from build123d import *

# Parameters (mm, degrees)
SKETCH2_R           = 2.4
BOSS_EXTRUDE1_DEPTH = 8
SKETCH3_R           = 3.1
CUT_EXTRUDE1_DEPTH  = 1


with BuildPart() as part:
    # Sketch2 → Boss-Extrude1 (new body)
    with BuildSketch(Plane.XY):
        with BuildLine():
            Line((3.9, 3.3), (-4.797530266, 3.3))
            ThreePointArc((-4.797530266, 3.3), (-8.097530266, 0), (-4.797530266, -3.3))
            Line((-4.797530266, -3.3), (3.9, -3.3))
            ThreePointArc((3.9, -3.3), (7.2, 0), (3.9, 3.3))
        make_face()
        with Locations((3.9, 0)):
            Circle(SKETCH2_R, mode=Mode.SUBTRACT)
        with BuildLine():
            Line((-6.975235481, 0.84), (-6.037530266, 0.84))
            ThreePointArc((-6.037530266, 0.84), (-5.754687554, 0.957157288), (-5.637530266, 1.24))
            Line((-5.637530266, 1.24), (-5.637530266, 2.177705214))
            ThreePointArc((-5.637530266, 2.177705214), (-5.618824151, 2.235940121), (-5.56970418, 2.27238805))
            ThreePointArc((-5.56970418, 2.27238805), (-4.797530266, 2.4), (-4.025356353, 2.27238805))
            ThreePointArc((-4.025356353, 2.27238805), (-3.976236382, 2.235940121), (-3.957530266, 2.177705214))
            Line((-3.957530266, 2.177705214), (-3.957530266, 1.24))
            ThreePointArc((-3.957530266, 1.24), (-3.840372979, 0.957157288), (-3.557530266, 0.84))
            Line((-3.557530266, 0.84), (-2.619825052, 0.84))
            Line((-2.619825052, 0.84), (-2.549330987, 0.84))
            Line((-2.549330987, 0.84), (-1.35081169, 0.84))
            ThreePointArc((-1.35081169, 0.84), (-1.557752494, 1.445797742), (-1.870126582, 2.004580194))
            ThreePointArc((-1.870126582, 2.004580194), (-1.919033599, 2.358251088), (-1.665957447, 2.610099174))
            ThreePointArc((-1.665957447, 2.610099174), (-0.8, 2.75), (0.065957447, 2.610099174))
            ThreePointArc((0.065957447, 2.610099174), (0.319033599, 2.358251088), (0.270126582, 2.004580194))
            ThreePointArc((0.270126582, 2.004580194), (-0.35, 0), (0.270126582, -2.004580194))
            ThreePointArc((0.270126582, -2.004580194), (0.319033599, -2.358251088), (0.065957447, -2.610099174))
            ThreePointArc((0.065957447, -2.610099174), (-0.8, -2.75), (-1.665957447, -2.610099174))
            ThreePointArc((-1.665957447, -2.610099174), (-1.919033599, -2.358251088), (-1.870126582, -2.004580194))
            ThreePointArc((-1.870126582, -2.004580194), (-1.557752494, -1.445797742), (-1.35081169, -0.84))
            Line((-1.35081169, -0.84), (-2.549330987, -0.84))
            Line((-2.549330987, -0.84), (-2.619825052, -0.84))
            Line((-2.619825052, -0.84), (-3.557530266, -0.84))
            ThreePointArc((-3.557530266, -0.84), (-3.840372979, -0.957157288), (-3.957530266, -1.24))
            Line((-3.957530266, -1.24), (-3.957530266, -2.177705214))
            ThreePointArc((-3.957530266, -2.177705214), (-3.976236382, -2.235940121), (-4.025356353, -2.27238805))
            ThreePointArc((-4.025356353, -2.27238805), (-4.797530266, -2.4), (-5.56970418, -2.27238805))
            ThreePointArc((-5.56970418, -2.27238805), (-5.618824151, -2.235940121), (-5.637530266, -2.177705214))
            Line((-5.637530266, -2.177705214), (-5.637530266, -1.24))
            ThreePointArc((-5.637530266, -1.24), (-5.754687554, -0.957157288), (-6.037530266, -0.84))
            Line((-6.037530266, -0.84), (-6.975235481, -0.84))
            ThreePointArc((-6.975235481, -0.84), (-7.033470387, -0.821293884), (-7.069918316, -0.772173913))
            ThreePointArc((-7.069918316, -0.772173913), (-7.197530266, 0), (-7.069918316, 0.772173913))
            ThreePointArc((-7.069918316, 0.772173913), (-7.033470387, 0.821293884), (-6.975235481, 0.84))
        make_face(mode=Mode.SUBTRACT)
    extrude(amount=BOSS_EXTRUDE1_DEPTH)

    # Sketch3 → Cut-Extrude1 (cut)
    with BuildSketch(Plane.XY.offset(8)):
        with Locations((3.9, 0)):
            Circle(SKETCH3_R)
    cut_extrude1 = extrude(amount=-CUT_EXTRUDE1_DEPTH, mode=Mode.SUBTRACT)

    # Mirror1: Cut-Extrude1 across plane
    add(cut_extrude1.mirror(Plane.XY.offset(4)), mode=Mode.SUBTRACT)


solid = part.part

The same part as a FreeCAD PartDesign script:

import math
import FreeCAD as App
import Part
import Sketcher
from FreeCAD import Vector

doc = App.newDocument("Part")
body = doc.addObject("PartDesign::Body", "Body")

# Sketch on XY plane
sketch1 = body.newObject("Sketcher::SketchObject", "Sketch")
sketch1.AttachmentSupport = (doc.getObject("XY_Plane"), [""])
sketch1.MapMode = "FlatFace"
sketch1.addGeometry(Part.LineSegment(Vector(3.9, 3.3, 0), Vector(-4.8, 3.3, 0)), False)
sketch1.addGeometry(Part.ArcOfCircle(Part.Circle(Vector(-4.8, 0, 0), Vector(0, 0, 1), 3.3), math.radians(90), math.radians(270)), False)
sketch1.addGeometry(Part.LineSegment(Vector(-4.8, -3.3, 0), Vector(3.9, -3.3, 0)), False)
sketch1.addGeometry(Part.ArcOfCircle(Part.Circle(Vector(3.9, 0, 0), Vector(0, 0, 1), 3.3), math.radians(-90), math.radians(90)), False)
sketch1.addGeometry(Part.ArcOfCircle(Part.Circle(Vector(-6.98, 0.74, 0), Vector(0, 0, 1), 0.1), math.radians(90), math.radians(161)), False)
sketch1.addGeometry(Part.LineSegment(Vector(-6.98, 0.84, 0), Vector(-6.04, 0.84, 0)), False)
sketch1.addGeometry(Part.ArcOfCircle(Part.Circle(Vector(-6.04, 1.24, 0), Vector(0, 0, 1), 0.4), math.radians(-90), math.radians(0)), False)
sketch1.addGeometry(Part.LineSegment(Vector(-5.64, 1.24, 0), Vector(-5.64, 2.18, 0)), False)
sketch1.addGeometry(Part.ArcOfCircle(Part.Circle(Vector(-5.54, 2.18, 0), Vector(0, 0, 1), 0.1), math.radians(109), math.radians(180)), False)
sketch1.addGeometry(Part.ArcOfCircle(Part.Circle(Vector(-4.8, 0, 0), Vector(0, 0, 1), 2.4), math.radians(71), math.radians(109)), False)
sketch1.addGeometry(Part.ArcOfCircle(Part.Circle(Vector(-4.06, 2.18, 0), Vector(0, 0, 1), 0.1), math.radians(0), math.radians(71)), False)
sketch1.addGeometry(Part.LineSegment(Vector(-3.96, 2.18, 0), Vector(-3.96, 1.24, 0)), False)
sketch1.addGeometry(Part.ArcOfCircle(Part.Circle(Vector(-3.56, 1.24, 0), Vector(0, 0, 1), 0.4), math.radians(180), math.radians(270)), False)
sketch1.addGeometry(Part.LineSegment(Vector(-3.56, 0.84, 0), Vector(-1.35, 0.84, 0)), False)
sketch1.addGeometry(Part.ArcOfCircle(Part.Circle(Vector(-4.8, 0, 0), Vector(0, 0, 1), 3.55), math.radians(14), math.radians(34)), False)
sketch1.addGeometry(Part.ArcOfCircle(Part.Circle(Vector(-1.54, 2.23, 0), Vector(0, 0, 1), 0.4), math.radians(108), math.radians(214)), False)
sketch1.addGeometry(Part.ArcOfCircle(Part.Circle(Vector(-0.8, 0, 0), Vector(0, 0, 1), 2.75), math.radians(72), math.radians(108)), False)
sketch1.addGeometry(Part.ArcOfCircle(Part.Circle(Vector(-0.06, 2.23, 0), Vector(0, 0, 1), 0.4), math.radians(-34), math.radians(72)), False)
sketch1.addGeometry(Part.ArcOfCircle(Part.Circle(Vector(3.2, 0, 0), Vector(0, 0, 1), 3.55), math.radians(146), math.radians(214)), False)
sketch1.addGeometry(Part.ArcOfCircle(Part.Circle(Vector(-0.06, -2.23, 0), Vector(0, 0, 1), 0.4), math.radians(-72), math.radians(34)), False)
sketch1.addGeometry(Part.ArcOfCircle(Part.Circle(Vector(-0.8, 0, 0), Vector(0, 0, 1), 2.75), math.radians(-108), math.radians(-72)), False)
sketch1.addGeometry(Part.ArcOfCircle(Part.Circle(Vector(-1.54, -2.23, 0), Vector(0, 0, 1), 0.4), math.radians(146), math.radians(252)), False)
sketch1.addGeometry(Part.ArcOfCircle(Part.Circle(Vector(-4.8, 0, 0), Vector(0, 0, 1), 3.55), math.radians(-34), math.radians(-14)), False)
sketch1.addGeometry(Part.LineSegment(Vector(-1.35, -0.84, 0), Vector(-3.56, -0.84, 0)), False)
sketch1.addGeometry(Part.ArcOfCircle(Part.Circle(Vector(-3.56, -1.24, 0), Vector(0, 0, 1), 0.4), math.radians(90), math.radians(180)), False)
sketch1.addGeometry(Part.LineSegment(Vector(-3.96, -1.24, 0), Vector(-3.96, -2.18, 0)), False)
sketch1.addGeometry(Part.ArcOfCircle(Part.Circle(Vector(-4.06, -2.18, 0), Vector(0, 0, 1), 0.1), math.radians(-71), math.radians(0)), False)
sketch1.addGeometry(Part.ArcOfCircle(Part.Circle(Vector(-4.8, 0, 0), Vector(0, 0, 1), 2.4), math.radians(-109), math.radians(-71)), False)
sketch1.addGeometry(Part.ArcOfCircle(Part.Circle(Vector(-5.54, -2.18, 0), Vector(0, 0, 1), 0.1), math.radians(180), math.radians(251)), False)
sketch1.addGeometry(Part.LineSegment(Vector(-5.64, -2.18, 0), Vector(-5.64, -1.24, 0)), False)
sketch1.addGeometry(Part.ArcOfCircle(Part.Circle(Vector(-6.04, -1.24, 0), Vector(0, 0, 1), 0.4), math.radians(0), math.radians(90)), False)
sketch1.addGeometry(Part.LineSegment(Vector(-6.04, -0.84, 0), Vector(-6.98, -0.84, 0)), False)
sketch1.addGeometry(Part.ArcOfCircle(Part.Circle(Vector(-6.98, -0.74, 0), Vector(0, 0, 1), 0.1), math.radians(-161), math.radians(-90)), False)
sketch1.addGeometry(Part.ArcOfCircle(Part.Circle(Vector(-4.8, 0, 0), Vector(0, 0, 1), 2.4), math.radians(161), math.radians(199)), False)
sketch1.addGeometry(Part.Circle(Vector(3.9, 0, 0), Vector(0, 0, 1), 2.4), False)
sketch1.addConstraint(Sketcher.Constraint("Tangent", 0, 2, 1, 1))
sketch1.addConstraint(Sketcher.Constraint("Tangent", 1, 2, 2, 1))
sketch1.addConstraint(Sketcher.Constraint("Tangent", 2, 2, 3, 1))
sketch1.addConstraint(Sketcher.Constraint("Tangent", 3, 2, 0, 1))
sketch1.addConstraint(Sketcher.Constraint("Tangent", 4, 1, 5, 1))
sketch1.addConstraint(Sketcher.Constraint("Tangent", 5, 2, 6, 1))
sketch1.addConstraint(Sketcher.Constraint("Tangent", 6, 2, 7, 1))
sketch1.addConstraint(Sketcher.Constraint("Tangent", 7, 2, 8, 2))
sketch1.addConstraint(Sketcher.Constraint("Tangent", 8, 1, 9, 2))
sketch1.addConstraint(Sketcher.Constraint("Tangent", 9, 1, 10, 2))
sketch1.addConstraint(Sketcher.Constraint("Tangent", 10, 1, 11, 1))
sketch1.addConstraint(Sketcher.Constraint("Tangent", 11, 2, 12, 1))
sketch1.addConstraint(Sketcher.Constraint("Tangent", 12, 2, 13, 1))
sketch1.addConstraint(Sketcher.Constraint("Coincident", 13, 2, 14, 1))
sketch1.addConstraint(Sketcher.Constraint("Tangent", 14, 2, 15, 2))
sketch1.addConstraint(Sketcher.Constraint("Tangent", 15, 1, 16, 2))
sketch1.addConstraint(Sketcher.Constraint("Tangent", 16, 1, 17, 2))
sketch1.addConstraint(Sketcher.Constraint("Tangent", 17, 1, 18, 1))
sketch1.addConstraint(Sketcher.Constraint("Tangent", 18, 2, 19, 2))
sketch1.addConstraint(Sketcher.Constraint("Tangent", 19, 1, 20, 2))
sketch1.addConstraint(Sketcher.Constraint("Tangent", 20, 1, 21, 2))
sketch1.addConstraint(Sketcher.Constraint("Tangent", 21, 1, 22, 1))
sketch1.addConstraint(Sketcher.Constraint("Coincident", 22, 2, 23, 1))
sketch1.addConstraint(Sketcher.Constraint("Tangent", 23, 2, 24, 1))
sketch1.addConstraint(Sketcher.Constraint("Tangent", 24, 2, 25, 1))
sketch1.addConstraint(Sketcher.Constraint("Tangent", 25, 2, 26, 2))
sketch1.addConstraint(Sketcher.Constraint("Tangent", 26, 1, 27, 2))
sketch1.addConstraint(Sketcher.Constraint("Tangent", 27, 1, 28, 2))
sketch1.addConstraint(Sketcher.Constraint("Tangent", 28, 1, 29, 1))
sketch1.addConstraint(Sketcher.Constraint("Tangent", 29, 2, 30, 1))
sketch1.addConstraint(Sketcher.Constraint("Tangent", 30, 2, 31, 1))
sketch1.addConstraint(Sketcher.Constraint("Tangent", 31, 2, 32, 2))
sketch1.addConstraint(Sketcher.Constraint("Tangent", 32, 1, 33, 2))
sketch1.addConstraint(Sketcher.Constraint("Tangent", 33, 1, 4, 2))
sketch1.addConstraint(Sketcher.Constraint("Horizontal", 0))
sketch1.addConstraint(Sketcher.Constraint("Horizontal", 2))
sketch1.addConstraint(Sketcher.Constraint("Horizontal", 5))
sketch1.addConstraint(Sketcher.Constraint("Vertical", 7))
sketch1.addConstraint(Sketcher.Constraint("Vertical", 11))
sketch1.addConstraint(Sketcher.Constraint("Horizontal", 13))
sketch1.addConstraint(Sketcher.Constraint("Horizontal", 23))
sketch1.addConstraint(Sketcher.Constraint("Vertical", 25))
sketch1.addConstraint(Sketcher.Constraint("Vertical", 29))
sketch1.addConstraint(Sketcher.Constraint("Horizontal", 31))
sketch1.addConstraint(Sketcher.Constraint("Coincident", 9, 3, 1, 3))
sketch1.addConstraint(Sketcher.Constraint("Coincident", 20, 3, 16, 3))
sketch1.addConstraint(Sketcher.Constraint("Coincident", 22, 3, 14, 3))
sketch1.addConstraint(Sketcher.Constraint("Coincident", 27, 3, 1, 3))
sketch1.addConstraint(Sketcher.Constraint("Coincident", 33, 3, 1, 3))
sketch1.addConstraint(Sketcher.Constraint("Coincident", 34, 3, 3, 3))
sketch1.addConstraint(Sketcher.Constraint("Equal", 4, 8))
sketch1.addConstraint(Sketcher.Constraint("Equal", 8, 10))
sketch1.addConstraint(Sketcher.Constraint("Equal", 6, 12))
sketch1.addConstraint(Sketcher.Constraint("Equal", 12, 15))
sketch1.addConstraint(Sketcher.Constraint("Equal", 15, 17))
sketch1.addConstraint(Sketcher.Constraint("Equal", 14, 18))
sketch1.addConstraint(Sketcher.Constraint("Equal", 17, 19))
sketch1.addConstraint(Sketcher.Constraint("Equal", 16, 20))
sketch1.addConstraint(Sketcher.Constraint("Equal", 19, 21))
sketch1.addConstraint(Sketcher.Constraint("Equal", 18, 22))
sketch1.addConstraint(Sketcher.Constraint("Equal", 21, 24))
sketch1.addConstraint(Sketcher.Constraint("Equal", 10, 26))
sketch1.addConstraint(Sketcher.Constraint("Equal", 9, 27))
sketch1.addConstraint(Sketcher.Constraint("Equal", 26, 28))
sketch1.addConstraint(Sketcher.Constraint("Equal", 24, 30))
sketch1.addConstraint(Sketcher.Constraint("Equal", 28, 32))
sketch1.addConstraint(Sketcher.Constraint("Equal", 27, 33))
sketch1.addConstraint(Sketcher.Constraint("Equal", 33, 34))
sketch1.addConstraint(Sketcher.Constraint("Symmetric", 17, 3, 19, 3, -1))
sketch1.addConstraint(Sketcher.Constraint("Symmetric", 12, 3, 24, 3, -1))
sketch1.addConstraint(Sketcher.Constraint("Symmetric", 8, 3, 28, 3, -1))
sketch1.addConstraint(Sketcher.Constraint("PointOnObject", 14, 3, -1))
sketch1.addConstraint(Sketcher.Constraint("Horizontal", 8, 3, 10, 3))
sketch1.addConstraint(Sketcher.Constraint("Horizontal", 6, 3, 12, 3))
sketch1.addConstraint(Sketcher.Constraint("Horizontal", 15, 3, 17, 3))
sketch1.addConstraint(Sketcher.Constraint("Horizontal", 24, 3, 30, 3))
sketch1.addConstraint(Sketcher.Constraint("Equal", 31, 7))
sketch1.addConstraint(Sketcher.Constraint("Diameter", 34, 4.8))
sketch1.addConstraint(Sketcher.Constraint("Radius", 1, 3.3))
sketch1.addConstraint(Sketcher.Constraint("Radius", 4, 0.1))
sketch1.addConstraint(Sketcher.Constraint("Radius", 6, 0.4))
sketch1.addConstraint(Sketcher.Constraint("Radius", 14, 3.55))
sketch1.addConstraint(Sketcher.Constraint("Radius", 16, 2.75))
sketch1.addConstraint(Sketcher.Constraint("DistanceX", 16, 3, 18, 3, 4.0))
sketch1.addConstraint(Sketcher.Constraint("DistanceX", -1, 1, 3, 3, 3.9))
sketch1.addConstraint(Sketcher.Constraint("DistanceX", 14, 3, -1, 1, 4.8))
sketch1.addConstraint(Sketcher.Constraint("DistanceY", -1, 1, 4, 3, 0.74))
sketch1.addConstraint(Sketcher.Constraint("DistanceX", 0, 2, 0, 1, 8.69753))
pad1 = body.newObject("PartDesign::Pad", "Pad")
pad1.Profile = sketch1
pad1.Length = 8

# Sketch on XY plane
sketch2 = body.newObject("Sketcher::SketchObject", "Sketch001")
sketch2.AttachmentSupport = (doc.getObject("XY_Plane"), [""])
sketch2.MapMode = "FlatFace"
sketch2.AttachmentOffset = App.Placement(Vector(0, 0, 8), App.Rotation())
sketch2.addGeometry(Part.Circle(Vector(3.9, 0, 0), Vector(0, 0, 1), 3.1), False)
sketch2.addConstraint(Sketcher.Constraint("PointOnObject", 0, 3, -1))
sketch2.addConstraint(Sketcher.Constraint("Diameter", 0, 6.2))
sketch2.addConstraint(Sketcher.Constraint("DistanceX", -1, 1, 0, 3, 3.9))
pocket1 = body.newObject("PartDesign::Pocket", "Pocket")
pocket1.Profile = sketch2
pocket1.Length = 1
doc.recompute()

datumplane = body.newObject("PartDesign::Plane", "DatumPlane")
datumplane.AttachmentSupport = (doc.getObject("XY_Plane"), [""])
datumplane.MapMode = "FlatFace"
datumplane.AttachmentOffset = App.Placement(Vector(0, 0, 4), App.Rotation())
mirrored = body.newObject("PartDesign::Mirrored", "Mirrored")
mirrored.Originals = [pocket1]
mirrored.MirrorPlane = (datumplane, [""])
body.Tip = mirrored

doc.recompute()
